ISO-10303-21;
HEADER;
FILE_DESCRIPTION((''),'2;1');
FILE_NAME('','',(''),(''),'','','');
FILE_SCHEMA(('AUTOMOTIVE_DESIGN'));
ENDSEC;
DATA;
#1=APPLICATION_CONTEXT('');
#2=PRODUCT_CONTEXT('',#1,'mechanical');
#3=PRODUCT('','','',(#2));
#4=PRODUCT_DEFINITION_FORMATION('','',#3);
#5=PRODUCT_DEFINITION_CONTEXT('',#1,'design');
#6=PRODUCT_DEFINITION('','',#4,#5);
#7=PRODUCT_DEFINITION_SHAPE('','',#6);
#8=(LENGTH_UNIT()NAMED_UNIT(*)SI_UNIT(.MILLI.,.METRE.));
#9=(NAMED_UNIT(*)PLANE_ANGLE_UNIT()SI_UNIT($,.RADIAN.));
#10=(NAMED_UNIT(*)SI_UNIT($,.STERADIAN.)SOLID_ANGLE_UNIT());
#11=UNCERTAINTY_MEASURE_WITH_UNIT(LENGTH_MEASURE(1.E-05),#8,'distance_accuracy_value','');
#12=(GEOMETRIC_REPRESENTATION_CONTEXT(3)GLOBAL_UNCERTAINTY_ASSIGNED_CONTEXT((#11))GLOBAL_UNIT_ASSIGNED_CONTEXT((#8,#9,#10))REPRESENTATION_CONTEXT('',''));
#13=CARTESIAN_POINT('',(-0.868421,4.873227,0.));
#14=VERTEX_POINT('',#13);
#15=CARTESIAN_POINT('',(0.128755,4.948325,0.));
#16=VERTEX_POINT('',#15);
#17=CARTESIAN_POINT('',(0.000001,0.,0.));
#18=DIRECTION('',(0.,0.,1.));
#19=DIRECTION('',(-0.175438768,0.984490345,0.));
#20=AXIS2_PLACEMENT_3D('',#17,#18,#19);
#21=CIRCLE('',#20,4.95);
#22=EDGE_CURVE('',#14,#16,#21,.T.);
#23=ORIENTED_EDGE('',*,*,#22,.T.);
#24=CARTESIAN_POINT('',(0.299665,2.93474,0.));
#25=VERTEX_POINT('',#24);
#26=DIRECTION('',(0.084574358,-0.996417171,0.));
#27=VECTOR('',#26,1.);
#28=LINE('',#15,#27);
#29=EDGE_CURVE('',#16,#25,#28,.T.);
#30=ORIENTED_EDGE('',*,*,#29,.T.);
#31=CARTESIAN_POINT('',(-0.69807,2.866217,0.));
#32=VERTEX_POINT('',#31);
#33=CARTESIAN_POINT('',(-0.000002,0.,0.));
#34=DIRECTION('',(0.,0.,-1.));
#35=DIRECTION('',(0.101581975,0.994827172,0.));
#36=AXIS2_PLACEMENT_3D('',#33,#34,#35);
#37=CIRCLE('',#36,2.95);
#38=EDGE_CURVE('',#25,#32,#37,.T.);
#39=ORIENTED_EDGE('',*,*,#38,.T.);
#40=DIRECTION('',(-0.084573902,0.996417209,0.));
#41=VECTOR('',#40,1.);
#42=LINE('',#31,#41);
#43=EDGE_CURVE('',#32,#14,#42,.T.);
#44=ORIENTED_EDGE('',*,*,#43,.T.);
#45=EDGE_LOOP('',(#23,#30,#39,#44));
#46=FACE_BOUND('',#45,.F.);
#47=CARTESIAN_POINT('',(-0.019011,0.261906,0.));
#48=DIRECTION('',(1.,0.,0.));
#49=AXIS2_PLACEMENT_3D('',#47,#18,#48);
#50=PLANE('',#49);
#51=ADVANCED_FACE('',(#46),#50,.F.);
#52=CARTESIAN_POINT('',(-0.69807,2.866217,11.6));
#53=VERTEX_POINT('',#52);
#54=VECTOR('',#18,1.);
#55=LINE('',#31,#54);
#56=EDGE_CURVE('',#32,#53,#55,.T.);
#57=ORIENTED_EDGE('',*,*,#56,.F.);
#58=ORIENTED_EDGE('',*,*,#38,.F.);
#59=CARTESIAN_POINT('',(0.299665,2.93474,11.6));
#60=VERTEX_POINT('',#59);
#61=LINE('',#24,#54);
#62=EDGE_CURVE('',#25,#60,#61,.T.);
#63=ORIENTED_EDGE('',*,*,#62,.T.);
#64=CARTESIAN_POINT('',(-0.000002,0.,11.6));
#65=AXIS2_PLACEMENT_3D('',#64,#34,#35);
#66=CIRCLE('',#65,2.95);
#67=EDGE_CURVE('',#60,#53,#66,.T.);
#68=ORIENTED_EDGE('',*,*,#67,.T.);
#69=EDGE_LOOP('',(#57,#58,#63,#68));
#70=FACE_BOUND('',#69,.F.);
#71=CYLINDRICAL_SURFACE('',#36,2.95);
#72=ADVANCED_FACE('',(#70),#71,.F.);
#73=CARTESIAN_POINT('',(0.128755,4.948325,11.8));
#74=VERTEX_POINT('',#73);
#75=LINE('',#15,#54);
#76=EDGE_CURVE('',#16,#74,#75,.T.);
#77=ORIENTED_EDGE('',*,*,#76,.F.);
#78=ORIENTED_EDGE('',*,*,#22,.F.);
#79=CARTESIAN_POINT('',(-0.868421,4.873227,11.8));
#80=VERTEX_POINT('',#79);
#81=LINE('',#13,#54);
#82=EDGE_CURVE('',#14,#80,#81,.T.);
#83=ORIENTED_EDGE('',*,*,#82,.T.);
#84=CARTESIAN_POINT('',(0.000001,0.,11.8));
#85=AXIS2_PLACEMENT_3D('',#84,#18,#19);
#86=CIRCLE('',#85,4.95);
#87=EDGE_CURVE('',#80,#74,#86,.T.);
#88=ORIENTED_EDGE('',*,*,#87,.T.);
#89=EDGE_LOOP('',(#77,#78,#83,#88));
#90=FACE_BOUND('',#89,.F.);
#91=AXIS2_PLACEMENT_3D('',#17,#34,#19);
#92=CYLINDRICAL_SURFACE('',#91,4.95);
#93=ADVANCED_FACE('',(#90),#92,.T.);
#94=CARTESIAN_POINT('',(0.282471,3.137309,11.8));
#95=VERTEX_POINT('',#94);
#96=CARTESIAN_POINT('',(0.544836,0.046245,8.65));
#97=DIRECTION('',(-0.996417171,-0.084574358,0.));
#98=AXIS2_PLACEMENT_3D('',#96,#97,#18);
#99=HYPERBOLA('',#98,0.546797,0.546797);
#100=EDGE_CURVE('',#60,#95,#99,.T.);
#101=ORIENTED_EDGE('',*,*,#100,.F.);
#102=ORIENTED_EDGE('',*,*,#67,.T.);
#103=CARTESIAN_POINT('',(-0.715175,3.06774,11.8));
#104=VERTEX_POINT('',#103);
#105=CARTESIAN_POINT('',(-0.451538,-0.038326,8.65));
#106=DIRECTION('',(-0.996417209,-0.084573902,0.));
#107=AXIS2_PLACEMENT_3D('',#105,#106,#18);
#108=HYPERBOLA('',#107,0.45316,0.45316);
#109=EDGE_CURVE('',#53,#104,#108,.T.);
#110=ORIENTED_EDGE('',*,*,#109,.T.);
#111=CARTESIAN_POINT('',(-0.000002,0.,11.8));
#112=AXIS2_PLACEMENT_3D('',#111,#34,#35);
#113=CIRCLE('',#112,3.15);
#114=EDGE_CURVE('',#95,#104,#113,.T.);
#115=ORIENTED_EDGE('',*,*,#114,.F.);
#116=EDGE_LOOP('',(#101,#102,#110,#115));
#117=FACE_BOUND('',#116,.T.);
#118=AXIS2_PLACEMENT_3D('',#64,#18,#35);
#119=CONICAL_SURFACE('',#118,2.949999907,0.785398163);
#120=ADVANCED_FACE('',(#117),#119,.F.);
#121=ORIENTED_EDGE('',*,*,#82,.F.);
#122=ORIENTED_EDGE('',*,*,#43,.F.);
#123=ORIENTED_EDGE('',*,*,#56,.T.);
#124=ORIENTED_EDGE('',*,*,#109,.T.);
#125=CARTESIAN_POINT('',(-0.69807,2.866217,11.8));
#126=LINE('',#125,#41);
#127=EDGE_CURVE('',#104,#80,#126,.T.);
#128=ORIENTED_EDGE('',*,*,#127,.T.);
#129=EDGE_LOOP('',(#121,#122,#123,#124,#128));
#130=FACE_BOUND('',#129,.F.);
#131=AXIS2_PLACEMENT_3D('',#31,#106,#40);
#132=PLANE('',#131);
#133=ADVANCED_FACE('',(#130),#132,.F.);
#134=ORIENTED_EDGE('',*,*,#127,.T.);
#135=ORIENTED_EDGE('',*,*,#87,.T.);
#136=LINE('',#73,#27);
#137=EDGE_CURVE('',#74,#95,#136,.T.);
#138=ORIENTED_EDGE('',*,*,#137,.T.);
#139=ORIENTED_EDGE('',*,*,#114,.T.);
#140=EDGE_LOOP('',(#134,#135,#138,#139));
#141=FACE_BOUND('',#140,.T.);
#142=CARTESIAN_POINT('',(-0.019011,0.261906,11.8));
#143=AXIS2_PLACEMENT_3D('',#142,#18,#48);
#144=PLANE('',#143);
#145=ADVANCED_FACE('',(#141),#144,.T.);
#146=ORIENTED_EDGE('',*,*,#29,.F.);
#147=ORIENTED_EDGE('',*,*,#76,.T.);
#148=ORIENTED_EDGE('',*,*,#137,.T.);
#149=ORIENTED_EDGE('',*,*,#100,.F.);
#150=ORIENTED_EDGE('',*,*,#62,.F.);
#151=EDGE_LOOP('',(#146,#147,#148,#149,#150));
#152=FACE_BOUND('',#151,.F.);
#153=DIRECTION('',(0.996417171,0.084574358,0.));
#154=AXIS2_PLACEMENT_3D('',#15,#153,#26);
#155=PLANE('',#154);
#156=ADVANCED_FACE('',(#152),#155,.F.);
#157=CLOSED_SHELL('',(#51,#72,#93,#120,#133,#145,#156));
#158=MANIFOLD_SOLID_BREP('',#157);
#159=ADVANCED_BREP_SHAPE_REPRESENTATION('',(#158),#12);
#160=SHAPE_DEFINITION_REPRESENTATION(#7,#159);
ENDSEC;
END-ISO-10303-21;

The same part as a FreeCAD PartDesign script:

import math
import FreeCAD as App
import Part
import Sketcher
from FreeCAD import Vector


def edges_at(feature, points):
    """Names of the edges that pass closest to the given points."""
    edges = feature.Shape.Edges
    near = lambda p: min(range(len(edges)), key=lambda i: edges[i].distToShape(Part.Vertex(*p))[0])
    return sorted({f"Edge{near(p) + 1}" for p in points})

doc = App.newDocument("Part")
body = doc.addObject("PartDesign::Body", "Body")

# Sketch on XY plane
sketch1 = doc.addObject("Sketcher::SketchObject", "Sketch")
body.addObject(sketch1)
sketch1.AttachmentSupport = (doc.XY_Plane, [""])
sketch1.MapMode = "FlatFace"
sketch1.addGeometry([
    Part.LineSegment(Vector(-0.7, 2.9, 0), Vector(-0.9, 4.9, 0)),
    Part.ArcOfCircle(Part.Circle(Vector(0, 0, 0), Vector(0, 0, 1), 4.9), math.radians(100), math.radians(449)),
    Part.LineSegment(Vector(0.1, 4.9, 0), Vector(0.3, 2.9, 0)),
    Part.ArcOfCircle(Part.Circle(Vector(0, 0, 0), Vector(0, 0, 1), 2.9), math.radians(104), math.radians(444)),
], False)
sketch1.addConstraint([
    Sketcher.Constraint("Coincident", 0, 2, 1, 1),
    Sketcher.Constraint("Coincident", 1, 2, 2, 1),
    Sketcher.Constraint("Coincident", 2, 2, 3, 2),
    Sketcher.Constraint("Coincident", 3, 1, 0, 1),
    Sketcher.Constraint("Coincident", 1, 3, -1, 1),
    Sketcher.Constraint("Coincident", 3, 3, -1, 1),
    Sketcher.Constraint("Parallel", 0, 2),
    Sketcher.Constraint("Radius", 1, 4.95),
    Sketcher.Constraint("Radius", 3, 2.95),
    Sketcher.Constraint("DistanceX", 0, 2, -1, 1, 0.868421),
    Sketcher.Constraint("DistanceY", -1, 1, 2, 2, 2.93474),
    Sketcher.Constraint("DistanceX", 3, 1, -1, 1, 0.69807),
])
pad1 = doc.addObject("PartDesign::Pad", "Pad")
body.addObject(pad1)
pad1.Profile = sketch1
pad1.Length = 11.8
doc.recompute()

chamfer = doc.addObject("PartDesign::Chamfer", "Chamfer")
body.addObject(chamfer)
chamfer.Base = (pad1, edges_at(pad1, [(0.202, -2.943, 11.8)]))
chamfer.Size = 0.2

doc.recompute()
